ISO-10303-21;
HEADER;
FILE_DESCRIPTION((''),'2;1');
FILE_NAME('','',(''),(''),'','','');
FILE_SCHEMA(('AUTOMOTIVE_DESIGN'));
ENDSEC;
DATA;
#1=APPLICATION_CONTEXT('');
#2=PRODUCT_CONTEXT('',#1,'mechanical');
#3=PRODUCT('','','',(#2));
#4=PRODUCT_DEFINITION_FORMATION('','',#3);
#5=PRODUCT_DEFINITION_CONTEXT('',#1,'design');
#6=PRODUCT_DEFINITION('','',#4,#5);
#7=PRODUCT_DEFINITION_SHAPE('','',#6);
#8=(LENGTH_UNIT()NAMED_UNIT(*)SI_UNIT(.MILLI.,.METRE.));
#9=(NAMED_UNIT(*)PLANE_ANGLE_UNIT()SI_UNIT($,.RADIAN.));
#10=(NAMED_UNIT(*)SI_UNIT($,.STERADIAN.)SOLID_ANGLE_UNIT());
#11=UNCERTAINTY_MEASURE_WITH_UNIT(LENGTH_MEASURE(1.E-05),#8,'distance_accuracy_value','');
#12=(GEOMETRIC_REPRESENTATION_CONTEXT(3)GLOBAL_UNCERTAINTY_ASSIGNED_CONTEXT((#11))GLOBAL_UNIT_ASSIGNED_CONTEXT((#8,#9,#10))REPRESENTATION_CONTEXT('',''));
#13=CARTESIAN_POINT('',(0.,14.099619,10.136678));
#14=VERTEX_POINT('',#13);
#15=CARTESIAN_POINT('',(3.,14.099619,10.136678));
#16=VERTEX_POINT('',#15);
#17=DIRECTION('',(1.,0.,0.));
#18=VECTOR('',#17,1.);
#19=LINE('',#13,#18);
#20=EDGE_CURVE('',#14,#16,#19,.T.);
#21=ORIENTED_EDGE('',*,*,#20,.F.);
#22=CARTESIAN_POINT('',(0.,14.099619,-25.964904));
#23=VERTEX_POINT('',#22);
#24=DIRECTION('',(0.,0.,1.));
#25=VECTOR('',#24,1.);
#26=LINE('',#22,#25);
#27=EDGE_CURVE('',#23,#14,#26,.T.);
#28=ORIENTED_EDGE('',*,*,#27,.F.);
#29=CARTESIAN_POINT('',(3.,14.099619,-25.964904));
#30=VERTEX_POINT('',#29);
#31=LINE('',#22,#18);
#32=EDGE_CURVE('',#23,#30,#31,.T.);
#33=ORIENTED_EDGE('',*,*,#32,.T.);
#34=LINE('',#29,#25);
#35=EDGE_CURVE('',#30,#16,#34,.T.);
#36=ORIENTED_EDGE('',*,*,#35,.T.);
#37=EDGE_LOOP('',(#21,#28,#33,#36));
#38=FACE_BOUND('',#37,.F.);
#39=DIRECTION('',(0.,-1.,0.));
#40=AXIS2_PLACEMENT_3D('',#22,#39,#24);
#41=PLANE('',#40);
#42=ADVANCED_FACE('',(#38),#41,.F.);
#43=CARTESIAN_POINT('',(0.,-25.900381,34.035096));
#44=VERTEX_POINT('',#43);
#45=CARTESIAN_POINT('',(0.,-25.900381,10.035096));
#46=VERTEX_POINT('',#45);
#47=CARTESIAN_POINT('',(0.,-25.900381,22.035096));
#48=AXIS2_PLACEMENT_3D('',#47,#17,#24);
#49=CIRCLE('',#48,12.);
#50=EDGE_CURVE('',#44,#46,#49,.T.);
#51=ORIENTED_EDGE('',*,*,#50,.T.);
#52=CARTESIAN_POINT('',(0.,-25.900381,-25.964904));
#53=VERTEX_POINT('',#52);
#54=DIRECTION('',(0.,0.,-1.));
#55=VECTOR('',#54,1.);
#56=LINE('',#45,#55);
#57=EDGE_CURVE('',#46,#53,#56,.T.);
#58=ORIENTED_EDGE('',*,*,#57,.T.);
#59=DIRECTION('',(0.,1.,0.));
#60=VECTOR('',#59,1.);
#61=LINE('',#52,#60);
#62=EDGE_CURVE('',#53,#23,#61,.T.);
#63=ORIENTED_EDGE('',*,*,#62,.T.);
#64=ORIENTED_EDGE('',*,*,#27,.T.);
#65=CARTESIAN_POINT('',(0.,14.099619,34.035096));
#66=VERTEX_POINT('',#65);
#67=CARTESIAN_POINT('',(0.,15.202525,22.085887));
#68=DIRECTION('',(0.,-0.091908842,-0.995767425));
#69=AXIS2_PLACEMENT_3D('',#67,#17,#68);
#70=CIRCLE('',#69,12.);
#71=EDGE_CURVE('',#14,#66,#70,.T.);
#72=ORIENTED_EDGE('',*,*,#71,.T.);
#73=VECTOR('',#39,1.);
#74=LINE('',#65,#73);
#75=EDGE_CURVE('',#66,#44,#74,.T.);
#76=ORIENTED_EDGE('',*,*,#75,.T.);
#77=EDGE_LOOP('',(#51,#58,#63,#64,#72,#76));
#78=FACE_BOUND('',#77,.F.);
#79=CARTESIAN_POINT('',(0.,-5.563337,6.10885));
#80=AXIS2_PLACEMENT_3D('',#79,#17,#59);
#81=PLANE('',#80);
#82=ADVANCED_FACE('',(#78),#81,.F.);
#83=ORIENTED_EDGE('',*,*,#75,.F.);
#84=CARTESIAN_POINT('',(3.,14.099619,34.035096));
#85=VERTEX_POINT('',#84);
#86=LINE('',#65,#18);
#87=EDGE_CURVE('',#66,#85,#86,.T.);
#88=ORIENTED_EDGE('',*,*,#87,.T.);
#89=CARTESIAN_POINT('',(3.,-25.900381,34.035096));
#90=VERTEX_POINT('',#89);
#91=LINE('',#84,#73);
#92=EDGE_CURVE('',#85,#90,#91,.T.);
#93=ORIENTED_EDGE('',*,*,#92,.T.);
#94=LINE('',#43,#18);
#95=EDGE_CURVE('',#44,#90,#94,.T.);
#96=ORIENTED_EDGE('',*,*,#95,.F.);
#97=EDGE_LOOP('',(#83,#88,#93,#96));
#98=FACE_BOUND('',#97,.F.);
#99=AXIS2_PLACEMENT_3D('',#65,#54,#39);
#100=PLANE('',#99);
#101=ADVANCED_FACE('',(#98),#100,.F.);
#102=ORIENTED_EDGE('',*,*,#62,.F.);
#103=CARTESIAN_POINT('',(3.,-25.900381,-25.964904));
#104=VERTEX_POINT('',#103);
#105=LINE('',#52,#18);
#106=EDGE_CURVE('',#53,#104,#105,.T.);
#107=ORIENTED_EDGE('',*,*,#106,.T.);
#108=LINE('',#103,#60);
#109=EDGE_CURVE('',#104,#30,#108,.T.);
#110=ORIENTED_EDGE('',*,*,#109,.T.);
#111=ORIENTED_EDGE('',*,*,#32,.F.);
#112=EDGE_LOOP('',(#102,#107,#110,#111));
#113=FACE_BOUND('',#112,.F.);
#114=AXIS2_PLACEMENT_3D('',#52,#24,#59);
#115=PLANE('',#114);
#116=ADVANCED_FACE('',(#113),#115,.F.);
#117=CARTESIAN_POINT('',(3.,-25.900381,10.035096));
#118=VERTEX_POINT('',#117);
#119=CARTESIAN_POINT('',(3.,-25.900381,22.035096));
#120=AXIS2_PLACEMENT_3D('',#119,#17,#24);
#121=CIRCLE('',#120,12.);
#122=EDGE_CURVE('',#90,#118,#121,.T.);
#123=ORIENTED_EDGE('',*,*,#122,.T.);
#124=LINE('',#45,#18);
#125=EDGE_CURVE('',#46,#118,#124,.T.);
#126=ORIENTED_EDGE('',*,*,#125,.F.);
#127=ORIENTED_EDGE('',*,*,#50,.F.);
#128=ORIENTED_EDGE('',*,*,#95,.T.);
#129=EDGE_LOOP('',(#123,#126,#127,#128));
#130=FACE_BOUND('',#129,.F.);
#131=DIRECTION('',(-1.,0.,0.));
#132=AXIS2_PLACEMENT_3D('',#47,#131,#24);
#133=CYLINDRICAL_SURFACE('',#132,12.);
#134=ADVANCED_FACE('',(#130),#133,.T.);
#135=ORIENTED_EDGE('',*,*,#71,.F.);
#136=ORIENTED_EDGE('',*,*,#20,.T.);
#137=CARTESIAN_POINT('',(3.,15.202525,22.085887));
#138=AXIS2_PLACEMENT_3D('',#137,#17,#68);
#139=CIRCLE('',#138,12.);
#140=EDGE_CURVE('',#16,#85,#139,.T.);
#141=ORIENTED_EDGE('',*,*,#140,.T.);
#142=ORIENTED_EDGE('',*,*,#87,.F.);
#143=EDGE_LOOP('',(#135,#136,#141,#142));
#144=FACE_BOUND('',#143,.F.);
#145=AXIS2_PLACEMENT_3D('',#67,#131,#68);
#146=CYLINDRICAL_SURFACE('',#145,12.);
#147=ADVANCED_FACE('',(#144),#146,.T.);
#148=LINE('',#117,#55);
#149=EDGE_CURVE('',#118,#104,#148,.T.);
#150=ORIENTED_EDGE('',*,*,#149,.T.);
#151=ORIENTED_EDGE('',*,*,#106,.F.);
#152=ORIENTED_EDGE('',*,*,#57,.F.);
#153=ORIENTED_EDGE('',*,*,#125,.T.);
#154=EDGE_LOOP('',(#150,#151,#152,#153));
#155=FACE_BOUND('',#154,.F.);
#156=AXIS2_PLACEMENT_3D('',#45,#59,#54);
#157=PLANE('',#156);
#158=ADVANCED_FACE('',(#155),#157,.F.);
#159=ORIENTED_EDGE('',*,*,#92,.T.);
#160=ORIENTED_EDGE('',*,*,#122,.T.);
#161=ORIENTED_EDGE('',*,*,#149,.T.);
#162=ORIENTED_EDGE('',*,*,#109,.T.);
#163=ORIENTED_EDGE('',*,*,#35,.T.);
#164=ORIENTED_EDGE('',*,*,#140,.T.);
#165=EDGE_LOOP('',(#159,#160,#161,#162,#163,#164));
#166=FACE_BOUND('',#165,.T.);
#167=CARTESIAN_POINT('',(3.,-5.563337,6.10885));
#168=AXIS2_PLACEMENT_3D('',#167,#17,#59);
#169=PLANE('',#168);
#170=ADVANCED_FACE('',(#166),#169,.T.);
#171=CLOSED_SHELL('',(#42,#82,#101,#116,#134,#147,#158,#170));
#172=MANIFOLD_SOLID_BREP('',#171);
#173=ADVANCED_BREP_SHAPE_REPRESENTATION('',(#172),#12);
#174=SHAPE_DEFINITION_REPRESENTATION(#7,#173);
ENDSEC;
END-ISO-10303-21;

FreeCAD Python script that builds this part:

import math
import FreeCAD as App
import Part
import Sketcher
Q = App.Units.Quantity

doc = App.newDocument("Part")
params = doc.addObject("Spreadsheet::Sheet", "Params")
for row, (alias, value) in enumerate([
    ("sketch1_radius", "12 mm"),
    ("sketch1_width", "40 mm"),
    ("sketch1_height", "36 mm"),
    ("pad1_length", "3 mm"),
], start=1):
    params.set(f"A{row}", alias)
    params.set(f"B{row}", "=" + value)
    params.setAlias(f"B{row}", alias)

body = doc.addObject("PartDesign::Body", "Body")

# Sketch on YZ plane
sketch1 = doc.addObject("Sketcher::SketchObject", "Sketch")
body.addObject(sketch1)
sketch1.AttachmentSupport = (doc.YZ_Plane, [""])
sketch1.MapMode = "FlatFace"
sketch1.addGeometry([
    Part.ArcOfCircle(Part.Circle(App.Vector(-26, 22, 0), App.Vector(0, 0, 1), 12), math.radians(90), math.radians(270)),  # 0
    Part.LineSegment(App.Vector(-26, 10, 0), App.Vector(-26, -26, 0)),  # 1
    Part.LineSegment(App.Vector(-26, -26, 0), App.Vector(14, -26, 0)),  # 2
    Part.LineSegment(App.Vector(14, -26, 0), App.Vector(14, 10, 0)),  # 3
    Part.ArcOfCircle(Part.Circle(App.Vector(15, 22, 0), App.Vector(0, 0, 1), 12), math.radians(-95), math.radians(95)),  # 4
    Part.LineSegment(App.Vector(14, 34, 0), App.Vector(-26, 34, 0)),  # 5
], False)
sketch1.addConstraint([
    Sketcher.Constraint("Coincident", 0, 2, 1, 1),
    Sketcher.Constraint("Coincident", 1, 2, 2, 1),
    Sketcher.Constraint("Coincident", 2, 2, 3, 1),
    Sketcher.Constraint("Coincident", 3, 2, 4, 1),
    Sketcher.Constraint("Coincident", 4, 2, 5, 1),
    Sketcher.Constraint("Tangent", 5, 2, 0, 1),
    Sketcher.Constraint("Vertical", 1),
    Sketcher.Constraint("Horizontal", 2),
    Sketcher.Constraint("Vertical", 3),
    Sketcher.Constraint("Horizontal", 5),
    Sketcher.Constraint("Equal", 0, 4),
    Sketcher.Constraint("Vertical", 3, 2, 4, 2),
    Sketcher.Constraint("Vertical", 1, 2, 5, 2),
    Sketcher.Constraint("Radius", 0, Q("12 mm")),
    Sketcher.Constraint("DistanceX", 2, 1, 2, 2, Q("40 mm")),
    Sketcher.Constraint("DistanceY", 1, 2, 1, 1, Q("36 mm")),
    Sketcher.Constraint("DistanceY", 3, 1, 3, 2, Q("36.101582 mm")),
    Sketcher.Constraint("DistanceX", 0, 3, -1, 1, Q("25.900381 mm")),
    Sketcher.Constraint("DistanceY", -1, 1, 0, 3, Q("22.035096 mm")),
])
sketch1.setExpression("Constraints[13]", "Params.sketch1_radius")
sketch1.setExpression("Constraints[14]", "Params.sketch1_width")
sketch1.setExpression("Constraints[15]", "Params.sketch1_height")
pad1 = doc.addObject("PartDesign::Pad", "Pad")
body.addObject(pad1)
pad1.Profile = sketch1
pad1.setExpression("Length", "Params.pad1_length")

doc.recompute()
